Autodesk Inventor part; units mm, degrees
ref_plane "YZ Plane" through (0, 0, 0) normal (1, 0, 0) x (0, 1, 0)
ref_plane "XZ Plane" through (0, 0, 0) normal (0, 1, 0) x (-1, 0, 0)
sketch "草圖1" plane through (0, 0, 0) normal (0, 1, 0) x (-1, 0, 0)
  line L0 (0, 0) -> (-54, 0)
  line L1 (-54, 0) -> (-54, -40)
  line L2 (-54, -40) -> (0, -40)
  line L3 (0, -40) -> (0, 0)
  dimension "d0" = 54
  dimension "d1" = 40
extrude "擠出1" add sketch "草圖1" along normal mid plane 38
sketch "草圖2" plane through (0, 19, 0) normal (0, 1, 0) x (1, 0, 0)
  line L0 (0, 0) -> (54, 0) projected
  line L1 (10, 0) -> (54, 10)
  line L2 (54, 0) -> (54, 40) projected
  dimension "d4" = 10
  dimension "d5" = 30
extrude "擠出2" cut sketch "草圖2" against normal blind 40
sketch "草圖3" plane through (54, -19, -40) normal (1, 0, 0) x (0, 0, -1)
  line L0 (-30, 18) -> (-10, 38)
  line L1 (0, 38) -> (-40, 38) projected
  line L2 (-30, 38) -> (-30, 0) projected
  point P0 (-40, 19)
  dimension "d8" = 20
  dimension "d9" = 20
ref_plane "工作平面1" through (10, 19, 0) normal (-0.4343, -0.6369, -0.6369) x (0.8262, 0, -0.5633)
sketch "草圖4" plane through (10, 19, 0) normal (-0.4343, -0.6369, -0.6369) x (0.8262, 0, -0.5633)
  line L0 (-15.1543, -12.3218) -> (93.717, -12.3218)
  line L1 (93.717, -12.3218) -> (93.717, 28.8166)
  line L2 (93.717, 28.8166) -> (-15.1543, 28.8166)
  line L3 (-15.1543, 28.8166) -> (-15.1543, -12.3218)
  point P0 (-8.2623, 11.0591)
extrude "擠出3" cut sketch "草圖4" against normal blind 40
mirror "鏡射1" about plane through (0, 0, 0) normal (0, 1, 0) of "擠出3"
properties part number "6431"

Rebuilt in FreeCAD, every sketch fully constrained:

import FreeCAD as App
import Part
import Sketcher


def add_polygon(sketch, points):
    """Adds a closed chain of lines whose ends are joined by coincident constraints."""
    first, n = sketch.GeometryCount, len(points)
    for a, b in zip(points, points[1:] + points[:1]):
        sketch.addGeometry(Part.LineSegment(App.Vector(*a, 0), App.Vector(*b, 0)), False)
    for i in range(n):
        sketch.addConstraint(Sketcher.Constraint("Coincident", first + i, 2, first + (i + 1) % n, 1))

doc = App.newDocument("Part")
body = doc.addObject("PartDesign::Body", "Body")

sketch1 = body.newObject("Sketcher::SketchObject", "Sketch")
sketch1.AttachmentSupport = (doc.getObject("XZ_Plane"), [""])
sketch1.MapMode = "FlatFace"
add_polygon(sketch1, [(0, -40), (0, 0), (54, 0), (54, -40)])
sketch1.addConstraint([
    Sketcher.Constraint("Vertical", 0),
    Sketcher.Constraint("Horizontal", 1),
    Sketcher.Constraint("Vertical", 2),
    Sketcher.Constraint("Horizontal", 3),
    Sketcher.Constraint("Coincident", 0, 2, -1, 1),
    Sketcher.Constraint("DistanceX", 1, 1, 1, 2, 54.0),
    Sketcher.Constraint("DistanceY", 0, 1, 0, 2, 40.0),
])
pad1 = body.newObject("PartDesign::Pad", "Pad")
pad1.Profile = sketch1
pad1.Length = 38
pad1.Midplane = True

sketch2 = body.newObject("Sketcher::SketchObject", "Sketch001")
sketch2.AttachmentSupport = (doc.getObject("XZ_Plane"), [""])
sketch2.MapMode = "FlatFace"
sketch2.AttachmentOffset = App.Placement(App.Vector(0, 0, -19), App.Rotation())
add_polygon(sketch2, [(54, -10), (10, 0), (54, 0)])
sketch2.addConstraint([
    Sketcher.Constraint("Horizontal", 1),
    Sketcher.Constraint("Vertical", 2),
    Sketcher.Constraint("PointOnObject", 0, 2, -1),
    Sketcher.Constraint("DistanceY", 2, 2, 2, 1, 10.0),
    Sketcher.Constraint("DistanceX", -1, 1, 0, 2, 10.0),
    Sketcher.Constraint("DistanceX", 1, 1, 1, 2, 44.0),
])
pocket1 = body.newObject("PartDesign::Pocket", "Pocket")
pocket1.Profile = sketch2
pocket1.Length = 40
pocket1.Reversed = True

sketch3 = body.newObject("Sketcher::SketchObject", "Sketch002")
sketch3.Placement = App.Placement(App.Vector(10, 19, 0), App.Rotation(App.Vector(0.826212833, -0.00003369, -0.563358103), App.Vector(0.358799311, -0.770920037, 0.526255975), App.Vector(-0.43432178, -0.63693194, -0.63693194), "ZXY"))
add_polygon(sketch3, [(-15, 29), (-15, -12), (94, -12), (94, 29)])
sketch3.addConstraint([
    Sketcher.Constraint("Vertical", 0),
    Sketcher.Constraint("Horizontal", 1),
    Sketcher.Constraint("Vertical", 2),
    Sketcher.Constraint("Horizontal", 3),
    Sketcher.Constraint("DistanceX", 1, 1, 1, 2, 108.8713),
    Sketcher.Constraint("DistanceY", 0, 2, 0, 1, 41.1384),
    Sketcher.Constraint("DistanceX", -1, 1, 1, 2, 93.717),
    Sketcher.Constraint("DistanceY", 0, 2, -1, 1, 12.3218),
])
pocket2 = body.newObject("PartDesign::Pocket", "Pocket001")
pocket2.Profile = sketch3
pocket2.Length = 40
doc.recompute()

mirrored = body.newObject("PartDesign::Mirrored", "Mirrored")
mirrored.Originals = [pocket2]
mirrored.MirrorPlane = (doc.getObject("XZ_Plane"), [""])
body.Tip = mirrored

doc.recompute()
